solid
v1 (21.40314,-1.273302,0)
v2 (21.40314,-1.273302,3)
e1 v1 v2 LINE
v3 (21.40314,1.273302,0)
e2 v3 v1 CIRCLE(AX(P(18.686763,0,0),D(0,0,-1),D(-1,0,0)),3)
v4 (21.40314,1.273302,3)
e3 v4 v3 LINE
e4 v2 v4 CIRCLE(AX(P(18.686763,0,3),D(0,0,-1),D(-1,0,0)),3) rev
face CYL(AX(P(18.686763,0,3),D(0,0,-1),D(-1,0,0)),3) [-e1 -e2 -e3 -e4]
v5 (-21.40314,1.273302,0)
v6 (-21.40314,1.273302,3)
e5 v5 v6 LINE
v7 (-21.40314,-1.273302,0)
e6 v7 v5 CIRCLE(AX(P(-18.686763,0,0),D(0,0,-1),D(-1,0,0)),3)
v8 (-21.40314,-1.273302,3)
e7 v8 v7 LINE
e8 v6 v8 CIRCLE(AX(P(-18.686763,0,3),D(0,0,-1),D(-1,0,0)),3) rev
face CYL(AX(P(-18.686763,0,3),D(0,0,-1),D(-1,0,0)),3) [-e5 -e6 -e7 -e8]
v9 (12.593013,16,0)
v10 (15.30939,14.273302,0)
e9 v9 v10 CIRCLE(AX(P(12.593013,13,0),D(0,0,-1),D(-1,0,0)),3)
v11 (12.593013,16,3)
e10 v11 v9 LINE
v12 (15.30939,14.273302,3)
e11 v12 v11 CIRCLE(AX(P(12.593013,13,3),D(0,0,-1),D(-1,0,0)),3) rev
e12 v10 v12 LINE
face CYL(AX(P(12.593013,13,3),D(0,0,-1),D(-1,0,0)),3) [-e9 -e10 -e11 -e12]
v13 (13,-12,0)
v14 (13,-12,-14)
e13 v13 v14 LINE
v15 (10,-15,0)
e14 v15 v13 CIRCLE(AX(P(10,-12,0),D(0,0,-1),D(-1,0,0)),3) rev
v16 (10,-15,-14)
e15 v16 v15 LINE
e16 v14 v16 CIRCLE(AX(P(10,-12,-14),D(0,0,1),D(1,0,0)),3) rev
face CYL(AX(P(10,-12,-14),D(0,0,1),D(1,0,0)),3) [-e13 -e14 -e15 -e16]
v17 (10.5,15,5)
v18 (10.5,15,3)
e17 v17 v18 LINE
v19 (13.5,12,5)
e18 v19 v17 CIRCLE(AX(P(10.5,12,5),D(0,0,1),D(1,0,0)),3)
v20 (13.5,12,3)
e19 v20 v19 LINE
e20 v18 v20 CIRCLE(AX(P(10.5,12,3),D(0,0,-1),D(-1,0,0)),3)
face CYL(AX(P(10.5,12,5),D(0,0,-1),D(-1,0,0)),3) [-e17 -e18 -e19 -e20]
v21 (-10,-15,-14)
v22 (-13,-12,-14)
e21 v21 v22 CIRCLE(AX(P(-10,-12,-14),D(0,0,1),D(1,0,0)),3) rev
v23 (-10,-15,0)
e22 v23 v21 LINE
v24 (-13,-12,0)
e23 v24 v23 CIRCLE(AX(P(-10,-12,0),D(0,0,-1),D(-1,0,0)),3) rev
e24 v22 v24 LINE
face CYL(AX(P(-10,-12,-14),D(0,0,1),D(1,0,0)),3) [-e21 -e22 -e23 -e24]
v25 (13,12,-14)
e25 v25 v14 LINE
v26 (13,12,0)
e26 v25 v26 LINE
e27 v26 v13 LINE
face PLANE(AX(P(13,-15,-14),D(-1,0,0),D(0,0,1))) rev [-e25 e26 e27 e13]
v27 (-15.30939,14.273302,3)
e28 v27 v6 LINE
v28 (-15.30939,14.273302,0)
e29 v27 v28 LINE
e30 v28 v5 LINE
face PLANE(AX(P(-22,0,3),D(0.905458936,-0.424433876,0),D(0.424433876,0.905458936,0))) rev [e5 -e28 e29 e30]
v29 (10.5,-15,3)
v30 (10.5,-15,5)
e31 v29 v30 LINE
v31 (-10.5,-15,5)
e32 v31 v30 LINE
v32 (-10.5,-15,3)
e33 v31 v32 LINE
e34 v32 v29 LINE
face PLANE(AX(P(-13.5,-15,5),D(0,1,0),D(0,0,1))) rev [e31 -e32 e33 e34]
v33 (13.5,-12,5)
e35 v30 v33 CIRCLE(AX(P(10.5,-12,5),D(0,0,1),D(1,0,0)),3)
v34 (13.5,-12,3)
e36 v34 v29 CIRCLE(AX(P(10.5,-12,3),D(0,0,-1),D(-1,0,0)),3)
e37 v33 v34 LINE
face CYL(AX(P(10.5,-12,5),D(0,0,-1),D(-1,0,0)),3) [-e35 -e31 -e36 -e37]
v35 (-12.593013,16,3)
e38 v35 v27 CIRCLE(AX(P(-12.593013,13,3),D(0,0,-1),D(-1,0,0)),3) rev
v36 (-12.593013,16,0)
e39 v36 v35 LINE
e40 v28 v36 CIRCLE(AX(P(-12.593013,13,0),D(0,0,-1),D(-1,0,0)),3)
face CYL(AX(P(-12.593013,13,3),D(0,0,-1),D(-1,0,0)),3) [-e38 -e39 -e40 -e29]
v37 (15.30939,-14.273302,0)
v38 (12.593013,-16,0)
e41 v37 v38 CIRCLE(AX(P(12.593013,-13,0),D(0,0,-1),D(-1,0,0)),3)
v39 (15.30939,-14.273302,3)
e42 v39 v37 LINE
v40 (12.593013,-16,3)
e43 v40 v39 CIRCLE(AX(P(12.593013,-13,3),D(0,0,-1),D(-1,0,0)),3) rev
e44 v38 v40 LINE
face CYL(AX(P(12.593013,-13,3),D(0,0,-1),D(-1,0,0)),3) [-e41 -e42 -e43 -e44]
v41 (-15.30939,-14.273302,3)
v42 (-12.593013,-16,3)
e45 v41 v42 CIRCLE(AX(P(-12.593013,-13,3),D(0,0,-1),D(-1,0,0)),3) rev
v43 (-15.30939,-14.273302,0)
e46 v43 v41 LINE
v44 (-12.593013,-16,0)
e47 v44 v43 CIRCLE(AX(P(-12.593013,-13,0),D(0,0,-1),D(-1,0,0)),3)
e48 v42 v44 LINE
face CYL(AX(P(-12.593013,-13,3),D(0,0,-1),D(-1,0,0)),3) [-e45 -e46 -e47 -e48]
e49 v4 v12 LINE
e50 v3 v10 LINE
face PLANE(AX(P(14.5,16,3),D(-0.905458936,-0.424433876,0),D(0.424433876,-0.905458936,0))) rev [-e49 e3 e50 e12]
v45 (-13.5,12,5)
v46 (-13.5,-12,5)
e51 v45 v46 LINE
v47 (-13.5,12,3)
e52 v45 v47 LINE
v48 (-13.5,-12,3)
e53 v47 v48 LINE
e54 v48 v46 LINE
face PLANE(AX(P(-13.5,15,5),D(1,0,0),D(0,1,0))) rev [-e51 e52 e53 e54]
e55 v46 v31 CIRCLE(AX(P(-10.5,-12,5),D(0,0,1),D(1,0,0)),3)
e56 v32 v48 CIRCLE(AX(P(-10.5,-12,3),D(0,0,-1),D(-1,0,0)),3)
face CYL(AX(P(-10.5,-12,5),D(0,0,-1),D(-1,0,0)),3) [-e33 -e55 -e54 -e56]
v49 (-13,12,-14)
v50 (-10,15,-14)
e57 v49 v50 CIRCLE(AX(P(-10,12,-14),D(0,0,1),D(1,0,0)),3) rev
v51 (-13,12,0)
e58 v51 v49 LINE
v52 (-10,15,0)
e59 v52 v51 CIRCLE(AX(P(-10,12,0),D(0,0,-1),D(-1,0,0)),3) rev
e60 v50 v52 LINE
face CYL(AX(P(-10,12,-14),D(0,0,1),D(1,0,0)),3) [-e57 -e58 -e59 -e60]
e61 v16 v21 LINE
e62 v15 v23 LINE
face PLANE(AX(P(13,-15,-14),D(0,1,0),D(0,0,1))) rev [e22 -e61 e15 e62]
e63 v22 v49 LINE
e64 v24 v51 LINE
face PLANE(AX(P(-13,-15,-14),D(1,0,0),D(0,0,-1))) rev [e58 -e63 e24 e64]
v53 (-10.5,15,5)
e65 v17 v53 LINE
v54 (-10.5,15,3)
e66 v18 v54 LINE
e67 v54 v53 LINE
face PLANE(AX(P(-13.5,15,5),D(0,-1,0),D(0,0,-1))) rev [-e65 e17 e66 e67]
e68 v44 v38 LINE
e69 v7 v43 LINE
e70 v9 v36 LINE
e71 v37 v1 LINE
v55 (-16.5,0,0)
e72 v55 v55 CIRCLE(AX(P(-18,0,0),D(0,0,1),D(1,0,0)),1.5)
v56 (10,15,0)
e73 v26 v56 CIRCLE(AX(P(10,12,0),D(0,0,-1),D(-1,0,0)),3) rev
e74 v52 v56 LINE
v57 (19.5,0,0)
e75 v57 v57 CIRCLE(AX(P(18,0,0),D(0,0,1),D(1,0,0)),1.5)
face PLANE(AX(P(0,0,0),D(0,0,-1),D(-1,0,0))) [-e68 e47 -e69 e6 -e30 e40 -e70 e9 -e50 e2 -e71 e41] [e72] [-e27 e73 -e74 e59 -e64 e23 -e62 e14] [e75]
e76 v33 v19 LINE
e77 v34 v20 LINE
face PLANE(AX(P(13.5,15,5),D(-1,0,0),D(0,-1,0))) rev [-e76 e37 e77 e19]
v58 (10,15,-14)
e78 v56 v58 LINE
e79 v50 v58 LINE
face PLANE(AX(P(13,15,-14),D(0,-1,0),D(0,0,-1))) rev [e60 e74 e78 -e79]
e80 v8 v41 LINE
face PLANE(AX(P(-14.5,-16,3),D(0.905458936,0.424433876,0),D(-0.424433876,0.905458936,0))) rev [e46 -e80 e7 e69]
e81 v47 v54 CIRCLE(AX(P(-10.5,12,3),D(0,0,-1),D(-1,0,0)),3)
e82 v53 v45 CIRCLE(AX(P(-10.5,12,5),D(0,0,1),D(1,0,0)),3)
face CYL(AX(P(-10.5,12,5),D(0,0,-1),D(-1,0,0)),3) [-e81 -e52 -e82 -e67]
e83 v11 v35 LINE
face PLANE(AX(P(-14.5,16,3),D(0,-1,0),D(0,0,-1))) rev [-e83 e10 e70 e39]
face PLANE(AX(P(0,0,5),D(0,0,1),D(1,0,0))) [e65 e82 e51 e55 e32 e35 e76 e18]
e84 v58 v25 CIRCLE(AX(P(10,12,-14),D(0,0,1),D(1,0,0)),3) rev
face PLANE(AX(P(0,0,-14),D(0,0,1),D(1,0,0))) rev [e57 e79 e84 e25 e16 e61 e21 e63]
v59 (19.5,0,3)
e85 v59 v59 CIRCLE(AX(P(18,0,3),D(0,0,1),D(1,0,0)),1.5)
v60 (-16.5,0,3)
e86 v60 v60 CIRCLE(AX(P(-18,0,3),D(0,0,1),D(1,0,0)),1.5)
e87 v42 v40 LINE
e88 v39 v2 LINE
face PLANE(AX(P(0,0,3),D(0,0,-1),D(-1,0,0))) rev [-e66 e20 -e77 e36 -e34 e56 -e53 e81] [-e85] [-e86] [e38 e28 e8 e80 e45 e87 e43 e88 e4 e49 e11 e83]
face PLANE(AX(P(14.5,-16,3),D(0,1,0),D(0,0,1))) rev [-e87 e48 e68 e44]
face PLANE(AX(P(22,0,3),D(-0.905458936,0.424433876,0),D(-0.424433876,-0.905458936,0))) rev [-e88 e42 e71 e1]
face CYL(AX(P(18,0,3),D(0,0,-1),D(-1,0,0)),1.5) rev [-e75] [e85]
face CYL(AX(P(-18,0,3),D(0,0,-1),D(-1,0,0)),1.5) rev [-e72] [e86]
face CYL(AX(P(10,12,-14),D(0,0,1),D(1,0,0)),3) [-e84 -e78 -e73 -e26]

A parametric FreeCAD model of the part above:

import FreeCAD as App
import Part
import Sketcher
from FreeCAD import Vector
Q = App.Units.Quantity


def edges_at(feature, points):
    """Names of the edges that pass closest to the given points."""
    edges = feature.Shape.Edges
    near = lambda p: min(range(len(edges)), key=lambda i: edges[i].distToShape(Part.Vertex(*p))[0])
    return sorted({f"Edge{near(p) + 1}" for p in points})

doc = App.newDocument("Part")
body = doc.addObject("PartDesign::Body", "Body")

sketch1 = body.newObject("Sketcher::SketchObject", "Sketch")
sketch1.AttachmentSupport = (doc.getObject("XY_Plane"), [""])
sketch1.MapMode = "FlatFace"
sketch1.addGeometry(Part.LineSegment(Vector(14.5, 16, 0), Vector(-14.5, 16, 0)), False)
sketch1.addGeometry(Part.LineSegment(Vector(-14.5, 16, 0), Vector(-22, 0, 0)), False)
sketch1.addGeometry(Part.LineSegment(Vector(-22, 0, 0), Vector(-14.5, -16, 0)), False)
sketch1.addGeometry(Part.LineSegment(Vector(-14.5, -16, 0), Vector(14.5, -16, 0)), False)
sketch1.addGeometry(Part.LineSegment(Vector(14.5, -16, 0), Vector(22, 0, 0)), False)
sketch1.addGeometry(Part.LineSegment(Vector(22, 0, 0), Vector(14.5, 16, 0)), False)
sketch1.addGeometry(Part.Circle(Vector(18, 0, 0), Vector(0, 0, 1), 1.5), False)
sketch1.addGeometry(Part.Circle(Vector(-18, 0, 0), Vector(0, 0, 1), 1.5), False)
sketch1.addConstraint(Sketcher.Constraint("Coincident", 0, 2, 1, 1))
sketch1.addConstraint(Sketcher.Constraint("Coincident", 1, 2, 2, 1))
sketch1.addConstraint(Sketcher.Constraint("Coincident", 2, 2, 3, 1))
sketch1.addConstraint(Sketcher.Constraint("Coincident", 3, 2, 4, 1))
sketch1.addConstraint(Sketcher.Constraint("Coincident", 4, 2, 5, 1))
sketch1.addConstraint(Sketcher.Constraint("Coincident", 5, 2, 0, 1))
sketch1.addConstraint(Sketcher.Constraint("Horizontal", 0))
sketch1.addConstraint(Sketcher.Constraint("Horizontal", 3))
sketch1.addConstraint(Sketcher.Constraint("Equal", 6, 7))
sketch1.addConstraint(Sketcher.Constraint("Symmetric", 6, 3, 7, 3, -1, 1))
sketch1.addConstraint(Sketcher.Constraint("Symmetric", 0, 2, 3, 2, -1, 1))
sketch1.addConstraint(Sketcher.Constraint("Symmetric", 1, 2, 4, 2, -1, 1))
sketch1.addConstraint(Sketcher.Constraint("PointOnObject", 6, 3, -1))
sketch1.addConstraint(Sketcher.Constraint("PointOnObject", 1, 2, -1))
sketch1.addConstraint(Sketcher.Constraint("Parallel", 2, 5))
sketch1.addConstraint(Sketcher.Constraint("Vertical", 0, 2, 2, 2))
sketch1.addConstraint(Sketcher.Constraint("Diameter", 6, Q("3 mm")))
sketch1.addConstraint(Sketcher.Constraint("DistanceX", 0, 2, 0, 1, Q("29 mm")))
sketch1.addConstraint(Sketcher.Constraint("DistanceX", -1, 1, 6, 3, Q("18 mm")))
sketch1.addConstraint(Sketcher.Constraint("DistanceY", -1, 1, 0, 2, Q("16 mm")))
sketch1.addConstraint(Sketcher.Constraint("DistanceX", 1, 2, -1, 1, Q("22 mm")))
pad1 = body.newObject("PartDesign::Pad", "Pad")
pad1.Profile = sketch1
pad1.Length = 3

sketch2 = body.newObject("Sketcher::SketchObject", "Sketch001")
sketch2.AttachmentSupport = (doc.getObject("XY_Plane"), [""])
sketch2.MapMode = "FlatFace"
sketch2.AttachmentOffset = App.Placement(Vector(0, 0, 3), App.Rotation())
sketch2.addGeometry(Part.LineSegment(Vector(-13.5, 15, 0), Vector(-13.5, -15, 0)), False)
sketch2.addGeometry(Part.LineSegment(Vector(-13.5, -15, 0), Vector(13.5, -15, 0)), False)
sketch2.addGeometry(Part.LineSegment(Vector(13.5, -15, 0), Vector(13.5, 15, 0)), False)
sketch2.addGeometry(Part.LineSegment(Vector(13.5, 15, 0), Vector(-13.5, 15, 0)), False)
sketch2.addConstraint(Sketcher.Constraint("Coincident", 0, 2, 1, 1))
sketch2.addConstraint(Sketcher.Constraint("Coincident", 1, 2, 2, 1))
sketch2.addConstraint(Sketcher.Constraint("Coincident", 2, 2, 3, 1))
sketch2.addConstraint(Sketcher.Constraint("Coincident", 3, 2, 0, 1))
sketch2.addConstraint(Sketcher.Constraint("Vertical", 0))
sketch2.addConstraint(Sketcher.Constraint("Horizontal", 1))
sketch2.addConstraint(Sketcher.Constraint("Vertical", 2))
sketch2.addConstraint(Sketcher.Constraint("Horizontal", 3))
sketch2.addConstraint(Sketcher.Constraint("Symmetric", 0, 2, 2, 2, -1, 1))
sketch2.addConstraint(Sketcher.Constraint("DistanceX", 1, 1, 1, 2, Q("27 mm")))
sketch2.addConstraint(Sketcher.Constraint("DistanceY", 0, 2, 0, 1, Q("30 mm")))
pad2 = body.newObject("PartDesign::Pad", "Pad001")
pad2.Profile = sketch2
pad2.Length = 2

sketch3 = body.newObject("Sketcher::SketchObject", "Sketch002")
sketch3.AttachmentSupport = (doc.getObject("XY_Plane"), [""])
sketch3.MapMode = "FlatFace"
sketch3.addGeometry(Part.LineSegment(Vector(13, 15, 0), Vector(13, -15, 0)), False)
sketch3.addGeometry(Part.LineSegment(Vector(13, -15, 0), Vector(-13, -15, 0)), False)
sketch3.addGeometry(Part.LineSegment(Vector(-13, -15, 0), Vector(-13, 15, 0)), False)
sketch3.addGeometry(Part.LineSegment(Vector(-13, 15, 0), Vector(13, 15, 0)), False)
sketch3.addConstraint(Sketcher.Constraint("Coincident", 0, 2, 1, 1))
sketch3.addConstraint(Sketcher.Constraint("Coincident", 1, 2, 2, 1))
sketch3.addConstraint(Sketcher.Constraint("Coincident", 2, 2, 3, 1))
sketch3.addConstraint(Sketcher.Constraint("Coincident", 3, 2, 0, 1))
sketch3.addConstraint(Sketcher.Constraint("Vertical", 0))
sketch3.addConstraint(Sketcher.Constraint("Horizontal", 1))
sketch3.addConstraint(Sketcher.Constraint("Vertical", 2))
sketch3.addConstraint(Sketcher.Constraint("Horizontal", 3))
sketch3.addConstraint(Sketcher.Constraint("Symmetric", 0, 2, 2, 2, -1, 1))
sketch3.addConstraint(Sketcher.Constraint("DistanceX", 1, 2, 1, 1, Q("26 mm")))
sketch3.addConstraint(Sketcher.Constraint("DistanceY", 0, 2, 0, 1, Q("30 mm")))
pad3 = body.newObject("PartDesign::Pad", "Pad002")
pad3.Profile = sketch3
pad3.Length = 14
pad3.Reversed = True
doc.recompute()

fillet = body.newObject("PartDesign::Fillet", "Fillet")
fillet.Base = (pad3, edges_at(pad3, [
    (-14.5, 16, 1.5),
    (14.5, 16, 1.5),
    (22, 0, 1.5),
    (14.5, -16, 1.5),
    (-14.5, -16, 1.5),
    (-22, 0, 1.5),
    (13.5, -15, 4),
    (13.5, 15, 4),
    (-13.5, 15, 4),
    (-13.5, -15, 4),
    (-13, -15, -7),
    (-13, 15, -7),
    (13, 15, -7),
    (13, -15, -7),
]))
fillet.Radius = 3

doc.recompute()
